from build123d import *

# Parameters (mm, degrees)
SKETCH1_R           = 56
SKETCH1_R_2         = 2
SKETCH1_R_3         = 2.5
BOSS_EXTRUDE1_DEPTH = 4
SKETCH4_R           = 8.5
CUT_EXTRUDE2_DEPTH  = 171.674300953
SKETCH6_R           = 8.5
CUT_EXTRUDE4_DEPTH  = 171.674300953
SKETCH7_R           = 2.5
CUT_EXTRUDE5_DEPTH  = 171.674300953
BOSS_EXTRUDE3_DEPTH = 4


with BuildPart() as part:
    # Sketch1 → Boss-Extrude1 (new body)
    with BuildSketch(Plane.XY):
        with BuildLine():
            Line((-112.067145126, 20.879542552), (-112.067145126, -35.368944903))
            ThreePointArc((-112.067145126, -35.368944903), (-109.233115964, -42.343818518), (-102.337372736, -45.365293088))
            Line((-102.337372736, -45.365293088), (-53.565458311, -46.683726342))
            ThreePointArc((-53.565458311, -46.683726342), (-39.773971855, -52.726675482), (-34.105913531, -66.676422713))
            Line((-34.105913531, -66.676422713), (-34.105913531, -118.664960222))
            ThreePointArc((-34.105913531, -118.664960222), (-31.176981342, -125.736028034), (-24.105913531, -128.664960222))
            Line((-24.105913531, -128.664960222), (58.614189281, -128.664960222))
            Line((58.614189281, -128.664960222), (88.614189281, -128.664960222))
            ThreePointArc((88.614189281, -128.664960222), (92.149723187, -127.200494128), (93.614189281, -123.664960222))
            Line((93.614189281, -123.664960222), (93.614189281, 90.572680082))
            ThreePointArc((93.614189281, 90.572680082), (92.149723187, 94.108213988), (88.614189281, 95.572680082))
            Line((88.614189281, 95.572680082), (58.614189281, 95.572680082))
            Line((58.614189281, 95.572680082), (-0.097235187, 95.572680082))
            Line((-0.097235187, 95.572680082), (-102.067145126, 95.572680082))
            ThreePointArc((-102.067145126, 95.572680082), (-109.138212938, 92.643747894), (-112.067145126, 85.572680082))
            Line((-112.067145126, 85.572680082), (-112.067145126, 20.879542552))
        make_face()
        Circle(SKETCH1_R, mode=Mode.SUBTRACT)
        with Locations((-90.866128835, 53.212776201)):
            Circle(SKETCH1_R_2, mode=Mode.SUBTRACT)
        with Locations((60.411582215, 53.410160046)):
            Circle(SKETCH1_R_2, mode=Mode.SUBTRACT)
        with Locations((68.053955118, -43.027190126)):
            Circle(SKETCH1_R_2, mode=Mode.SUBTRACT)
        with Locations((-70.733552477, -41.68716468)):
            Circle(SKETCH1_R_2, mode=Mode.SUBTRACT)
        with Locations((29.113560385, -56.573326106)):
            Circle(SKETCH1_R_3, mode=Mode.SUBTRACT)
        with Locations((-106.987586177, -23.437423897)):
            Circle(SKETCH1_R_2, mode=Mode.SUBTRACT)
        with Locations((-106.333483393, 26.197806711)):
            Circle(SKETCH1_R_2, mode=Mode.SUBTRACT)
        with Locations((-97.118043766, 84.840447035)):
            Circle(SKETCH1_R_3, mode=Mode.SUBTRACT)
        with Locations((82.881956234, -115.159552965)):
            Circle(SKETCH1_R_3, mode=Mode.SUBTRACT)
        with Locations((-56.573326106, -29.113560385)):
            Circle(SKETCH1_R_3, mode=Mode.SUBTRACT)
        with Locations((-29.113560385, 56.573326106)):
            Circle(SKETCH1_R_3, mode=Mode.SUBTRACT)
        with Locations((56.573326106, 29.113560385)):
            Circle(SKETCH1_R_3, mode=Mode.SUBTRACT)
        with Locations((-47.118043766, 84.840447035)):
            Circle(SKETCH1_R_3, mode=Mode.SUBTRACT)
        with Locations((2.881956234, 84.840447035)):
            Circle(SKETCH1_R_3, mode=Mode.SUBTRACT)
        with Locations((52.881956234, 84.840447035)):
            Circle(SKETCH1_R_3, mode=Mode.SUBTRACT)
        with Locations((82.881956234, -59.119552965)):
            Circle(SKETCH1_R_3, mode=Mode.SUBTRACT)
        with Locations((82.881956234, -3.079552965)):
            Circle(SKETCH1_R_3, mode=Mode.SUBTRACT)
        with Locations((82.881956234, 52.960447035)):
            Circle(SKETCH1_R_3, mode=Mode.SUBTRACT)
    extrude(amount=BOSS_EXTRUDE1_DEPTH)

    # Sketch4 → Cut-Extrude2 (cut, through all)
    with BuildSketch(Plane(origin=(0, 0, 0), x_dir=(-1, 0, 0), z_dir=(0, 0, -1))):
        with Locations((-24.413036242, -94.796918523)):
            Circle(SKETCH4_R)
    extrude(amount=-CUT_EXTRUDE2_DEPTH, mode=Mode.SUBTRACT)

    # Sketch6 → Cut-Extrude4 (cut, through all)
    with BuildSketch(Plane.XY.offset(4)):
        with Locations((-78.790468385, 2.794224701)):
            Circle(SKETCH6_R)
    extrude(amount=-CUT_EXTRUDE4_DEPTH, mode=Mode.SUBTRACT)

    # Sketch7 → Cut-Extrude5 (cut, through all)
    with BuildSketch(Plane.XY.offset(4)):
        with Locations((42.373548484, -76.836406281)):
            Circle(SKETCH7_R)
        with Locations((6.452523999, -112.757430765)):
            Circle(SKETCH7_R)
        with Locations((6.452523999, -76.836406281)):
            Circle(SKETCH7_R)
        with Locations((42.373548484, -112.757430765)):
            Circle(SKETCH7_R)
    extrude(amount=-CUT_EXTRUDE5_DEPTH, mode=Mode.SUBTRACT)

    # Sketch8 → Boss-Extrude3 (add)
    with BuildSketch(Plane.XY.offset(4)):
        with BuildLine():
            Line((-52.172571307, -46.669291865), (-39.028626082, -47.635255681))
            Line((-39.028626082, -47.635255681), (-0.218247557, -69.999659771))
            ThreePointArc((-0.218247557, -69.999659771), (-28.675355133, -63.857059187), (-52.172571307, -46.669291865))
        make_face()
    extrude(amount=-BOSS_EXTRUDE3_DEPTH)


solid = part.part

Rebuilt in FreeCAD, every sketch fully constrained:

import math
import FreeCAD as App
import Part
import Sketcher
from FreeCAD import Vector
Q = App.Units.Quantity

doc = App.newDocument("Part")
params = doc.addObject("Spreadsheet::Sheet", "Params")
for row, (alias, value) in enumerate([
    ("sketch1_diameter", "4 mm"),
    ("sketch1_diameter2", "5 mm"),
    ("sketch1_diameter3", "112 mm"),
    ("sketch1_radius", "10 mm"),
    ("sketch1_radius2", "20 mm"),
    ("pad1_length", "4 mm"),
    ("sketch2_diameter", "17 mm"),
    ("sketch3_diameter", "17 mm"),
    ("sketch4_diameter", "5 mm"),
    ("sketch5_radius", "70 mm"),
    ("pad2_length", "4 mm"),
], start=1):
    params.set(f"A{row}", alias)
    params.set(f"B{row}", "=" + value)
    params.setAlias(f"B{row}", alias)

body = doc.addObject("PartDesign::Body", "Body")

sketch1 = doc.addObject("Sketcher::SketchObject", "Sketch")
body.addObject(sketch1)
sketch1.AttachmentSupport = (doc.XY_Plane, [""])
sketch1.MapMode = "FlatFace"
sketch1.addGeometry(Part.ArcOfCircle(Part.Circle(Vector(-102.1, -35.4, 0), Vector(0, 0, 1), 10), math.radians(180), math.radians(268)), False)
sketch1.addGeometry(Part.LineSegment(Vector(-102.3, -45.4, 0), Vector(-53.6, -46.7, 0)), False)
sketch1.addGeometry(Part.ArcOfCircle(Part.Circle(Vector(-54.1, -66.7, 0), Vector(0, 0, 1), 20), math.radians(0), math.radians(88)), False)
sketch1.addGeometry(Part.LineSegment(Vector(-34.1, -66.7, 0), Vector(-34.1, -118.7, 0)), False)
sketch1.addGeometry(Part.ArcOfCircle(Part.Circle(Vector(-24.1, -118.7, 0), Vector(0, 0, 1), 10), math.radians(-180), math.radians(-90)), False)
sketch1.addGeometry(Part.LineSegment(Vector(-24.1, -128.7, 0), Vector(88.6, -128.7, 0)), False)
sketch1.addGeometry(Part.ArcOfCircle(Part.Circle(Vector(88.6, -123.7, 0), Vector(0, 0, 1), 5), math.radians(-90), math.radians(0)), False)
sketch1.addGeometry(Part.LineSegment(Vector(93.6, -123.7, 0), Vector(93.6, 90.6, 0)), False)
sketch1.addGeometry(Part.ArcOfCircle(Part.Circle(Vector(88.6, 90.6, 0), Vector(0, 0, 1), 5), math.radians(0), math.radians(90)), False)
sketch1.addGeometry(Part.LineSegment(Vector(88.6, 95.6, 0), Vector(-102.1, 95.6, 0)), False)
sketch1.addGeometry(Part.ArcOfCircle(Part.Circle(Vector(-102.1, 85.6, 0), Vector(0, 0, 1), 10), math.radians(90), math.radians(180)), False)
sketch1.addGeometry(Part.LineSegment(Vector(-112.1, 85.6, 0), Vector(-112.1, -35.4, 0)), False)
sketch1.addGeometry(Part.Circle(Vector(-70.7, -41.7, 0), Vector(0, 0, 1), 2), False)
sketch1.addGeometry(Part.Circle(Vector(-107, -23.4, 0), Vector(0, 0, 1), 2), False)
sketch1.addGeometry(Part.Circle(Vector(-56.6, -29.1, 0), Vector(0, 0, 1), 2.5), False)
sketch1.addGeometry(Part.Circle(Vector(82.9, -115.2, 0), Vector(0, 0, 1), 2.5), False)
sketch1.addGeometry(Part.Circle(Vector(29.1, -56.6, 0), Vector(0, 0, 1), 2.5), False)
sketch1.addGeometry(Part.Circle(Vector(82.9, -59.1, 0), Vector(0, 0, 1), 2.5), False)
sketch1.addGeometry(Part.Circle(Vector(68.1, -43, 0), Vector(0, 0, 1), 2), False)
sketch1.addGeometry(Part.Circle(Vector(-106.3, 26.2, 0), Vector(0, 0, 1), 2), False)
sketch1.addGeometry(Part.Circle(Vector(-90.9, 53.2, 0), Vector(0, 0, 1), 2), False)
sketch1.addGeometry(Part.Circle(Vector(-97.1, 84.8, 0), Vector(0, 0, 1), 2.5), False)
sketch1.addGeometry(Part.Circle(Vector(-29.1, 56.6, 0), Vector(0, 0, 1), 2.5), False)
sketch1.addGeometry(Part.Circle(Vector(-47.1, 84.8, 0), Vector(0, 0, 1), 2.5), False)
sketch1.addGeometry(Part.Circle(Vector(0, 0, 0), Vector(0, 0, 1), 56), False)
sketch1.addGeometry(Part.Circle(Vector(82.9, -3.1, 0), Vector(0, 0, 1), 2.5), False)
sketch1.addGeometry(Part.Circle(Vector(56.6, 29.1, 0), Vector(0, 0, 1), 2.5), False)
sketch1.addGeometry(Part.Circle(Vector(2.9, 84.8, 0), Vector(0, 0, 1), 2.5), False)
sketch1.addGeometry(Part.Circle(Vector(60.4, 53.4, 0), Vector(0, 0, 1), 2), False)
sketch1.addGeometry(Part.Circle(Vector(82.9, 53, 0), Vector(0, 0, 1), 2.5), False)
sketch1.addGeometry(Part.Circle(Vector(52.9, 84.8, 0), Vector(0, 0, 1), 2.5), False)
sketch1.addConstraint(Sketcher.Constraint("Tangent", 0, 2, 1, 1))
sketch1.addConstraint(Sketcher.Constraint("Tangent", 1, 2, 2, 2))
sketch1.addConstraint(Sketcher.Constraint("Tangent", 2, 1, 3, 1))
sketch1.addConstraint(Sketcher.Constraint("Tangent", 3, 2, 4, 1))
sketch1.addConstraint(Sketcher.Constraint("Tangent", 4, 2, 5, 1))
sketch1.addConstraint(Sketcher.Constraint("Tangent", 5, 2, 6, 1))
sketch1.addConstraint(Sketcher.Constraint("Tangent", 6, 2, 7, 1))
sketch1.addConstraint(Sketcher.Constraint("Tangent", 7, 2, 8, 1))
sketch1.addConstraint(Sketcher.Constraint("Tangent", 8, 2, 9, 1))
sketch1.addConstraint(Sketcher.Constraint("Tangent", 9, 2, 10, 1))
sketch1.addConstraint(Sketcher.Constraint("Tangent", 10, 2, 11, 1))
sketch1.addConstraint(Sketcher.Constraint("Tangent", 11, 2, 0, 1))
sketch1.addConstraint(Sketcher.Constraint("Vertical", 3))
sketch1.addConstraint(Sketcher.Constraint("Horizontal", 5))
sketch1.addConstraint(Sketcher.Constraint("Vertical", 7))
sketch1.addConstraint(Sketcher.Constraint("Horizontal", 9))
sketch1.addConstraint(Sketcher.Constraint("Vertical", 11))
sketch1.addConstraint(Sketcher.Constraint("Coincident", 24, 3, -1, 1))
sketch1.addConstraint(Sketcher.Constraint("Equal", 0, 4))
sketch1.addConstraint(Sketcher.Constraint("Equal", 6, 8))
sketch1.addConstraint(Sketcher.Constraint("Equal", 4, 10))
sketch1.addConstraint(Sketcher.Constraint("Equal", 12, 13))
sketch1.addConstraint(Sketcher.Constraint("Equal", 14, 15))
sketch1.addConstraint(Sketcher.Constraint("Equal", 15, 16))
sketch1.addConstraint(Sketcher.Constraint("Equal", 16, 17))
sketch1.addConstraint(Sketcher.Constraint("Equal", 13, 18))
sketch1.addConstraint(Sketcher.Constraint("Equal", 18, 19))
sketch1.addConstraint(Sketcher.Constraint("Equal", 19, 20))
sketch1.addConstraint(Sketcher.Constraint("Equal", 17, 21))
sketch1.addConstraint(Sketcher.Constraint("Equal", 21, 22))
sketch1.addConstraint(Sketcher.Constraint("Equal", 22, 23))
sketch1.addConstraint(Sketcher.Constraint("Equal", 23, 25))
sketch1.addConstraint(Sketcher.Constraint("Equal", 25, 26))
sketch1.addConstraint(Sketcher.Constraint("Equal", 26, 27))
sketch1.addConstraint(Sketcher.Constraint("Equal", 20, 28))
sketch1.addConstraint(Sketcher.Constraint("Equal", 27, 29))
sketch1.addConstraint(Sketcher.Constraint("Equal", 29, 30))
sketch1.addConstraint(Sketcher.Constraint("Symmetric", 16, 3, 22, 3, -1, 1))
sketch1.addConstraint(Sketcher.Constraint("Symmetric", 14, 3, 26, 3, -1, 1))
sketch1.addConstraint(Sketcher.Constraint("Horizontal", 21, 3, 23, 3))
sketch1.addConstraint(Sketcher.Constraint("Horizontal", 23, 3, 27, 3))
sketch1.addConstraint(Sketcher.Constraint("Horizontal", 27, 3, 30, 3))
sketch1.addConstraint(Sketcher.Constraint("Vertical", 15, 3, 17, 3))
sketch1.addConstraint(Sketcher.Constraint("Vertical", 17, 3, 25, 3))
sketch1.addConstraint(Sketcher.Constraint("Vertical", 25, 3, 29, 3))
sketch1.addConstraint(Sketcher.Constraint("Diameter", 12, Q("4 mm")))
sketch1.addConstraint(Sketcher.Constraint("Diameter", 14, Q("5 mm")))
sketch1.addConstraint(Sketcher.Constraint("Diameter", 24, Q("112 mm")))
sketch1.addConstraint(Sketcher.Constraint("Radius", 0, Q("10 mm")))
sketch1.addConstraint(Sketcher.Constraint("Radius", 2, Q("20 mm")))
sketch1.addConstraint(Sketcher.Constraint("Radius", 6, Q("5 mm")))
sketch1.addConstraint(Sketcher.Constraint("DistanceX", 21, 3, 23, 3, Q("50 mm")))
sketch1.addConstraint(Sketcher.Constraint("DistanceX", 23, 3, 27, 3, Q("50 mm")))
sketch1.addConstraint(Sketcher.Constraint("DistanceX", 27, 3, 29, 3, Q("80 mm")))
sketch1.addConstraint(Sketcher.Constraint("DistanceX", 30, 3, 29, 3, Q("30 mm")))
sketch1.addConstraint(Sketcher.Constraint("DistanceY", 15, 3, 17, 3, Q("56.04 mm")))
sketch1.addConstraint(Sketcher.Constraint("DistanceY", 17, 3, 25, 3, Q("56.04 mm")))
sketch1.addConstraint(Sketcher.Constraint("DistanceY", 25, 3, 29, 3, Q("56.04 mm")))
sketch1.addConstraint(Sketcher.Constraint("DistanceY", 29, 3, 27, 3, Q("31.88 mm")))
sketch1.addConstraint(Sketcher.Constraint("DistanceY", 2, 3, 13, 3, Q("43.238999 mm")))
sketch1.addConstraint(Sketcher.Constraint("DistanceX", 18, 3, 17, 3, Q("14.828001 mm")))
sketch1.addConstraint(Sketcher.Constraint("DistanceY", 7, 1, 7, 2, Q("214.23764 mm")))
sketch1.addConstraint(Sketcher.Constraint("DistanceY", 4, 3, 14, 3, Q("89.5514 mm")))
sketch1.addConstraint(Sketcher.Constraint("DistanceY", 13, 3, 20, 3, Q("76.6502 mm")))
sketch1.addConstraint(Sketcher.Constraint("DistanceX", 10, 3, 21, 3, Q("4.949101 mm")))
sketch1.addConstraint(Sketcher.Constraint("DistanceY", 26, 3, 28, 3, Q("24.2966 mm")))
sketch1.addConstraint(Sketcher.Constraint("Distance", 1, Q("48.789732 mm")))
sketch1.addConstraint(Sketcher.Constraint("DistanceX", 5, 1, 5, 2, Q("112.720103 mm")))
sketch1.addConstraint(Sketcher.Constraint("DistanceX", 9, 2, 9, 1, Q("190.681334 mm")))
sketch1.addConstraint(Sketcher.Constraint("DistanceY", 3, 2, 3, 1, Q("51.988538 mm")))
sketch1.addConstraint(Sketcher.Constraint("DistanceY", 4, 3, -1, 1, Q("118.66496 mm")))
sketch1.addConstraint(Sketcher.Constraint("DistanceX", -1, 1, 6, 3, Q("88.614189 mm")))
sketch1.addConstraint(Sketcher.Constraint("DistanceX", -1, 1, 16, 3, Q("29.11356 mm")))
sketch1.addConstraint(Sketcher.Constraint("DistanceY", 18, 3, -1, 1, Q("43.02719 mm")))
sketch1.addConstraint(Sketcher.Constraint("DistanceX", 20, 3, -1, 1, Q("90.866129 mm")))
sketch1.addConstraint(Sketcher.Constraint("DistanceX", 12, 3, 2, 3, Q("16.627639 mm")))
sketch1.addConstraint(Sketcher.Constraint("DistanceY", 2, 3, 12, 3, Q("24.989258 mm")))
sketch1.addConstraint(Sketcher.Constraint("DistanceX", 13, 3, 0, 3, Q("4.920441 mm")))
sketch1.addConstraint(Sketcher.Constraint("DistanceX", 0, 3, 14, 3, Q("45.493819 mm")))
sketch1.addConstraint(Sketcher.Constraint("DistanceY", 15, 3, 2, 3, Q("48.48313 mm")))
sketch1.addConstraint(Sketcher.Constraint("DistanceY", 13, 3, 19, 3, Q("49.635231 mm")))
sketch1.addConstraint(Sketcher.Constraint("DistanceX", 19, 3, 10, 3, Q("4.266338 mm")))
sketch1.addConstraint(Sketcher.Constraint("DistanceY", 20, 3, 22, 3, Q("3.36055 mm")))
sketch1.addConstraint(Sketcher.Constraint("DistanceX", -1, 1, 28, 3, Q("60.411582 mm")))
sketch1.setExpression("Constraints[45]", "Params.sketch1_diameter")
sketch1.setExpression("Constraints[46]", "Params.sketch1_diameter2")
sketch1.setExpression("Constraints[47]", "Params.sketch1_diameter3")
sketch1.setExpression("Constraints[48]", "Params.sketch1_radius")
sketch1.setExpression("Constraints[49]", "Params.sketch1_radius2")
pad1 = doc.addObject("PartDesign::Pad", "Pad")
body.addObject(pad1)
pad1.Profile = sketch1
pad1.setExpression("Length", "Params.pad1_length")

sketch2 = doc.addObject("Sketcher::SketchObject", "Sketch001")
body.addObject(sketch2)
sketch2.AttachmentSupport = (doc.XY_Plane, [""])
sketch2.MapMode = "FlatFace"
sketch2.addGeometry(Part.Circle(Vector(24, -95, 0), Vector(0, 0, 1), 8), False)
sketch2.addConstraint(Sketcher.Constraint("Diameter", 0, Q("17 mm")))
sketch2.addConstraint(Sketcher.Constraint("DistanceY", 0, 3, -1, 1, Q("94.796919 mm")))
sketch2.addConstraint(Sketcher.Constraint("DistanceX", -1, 1, 0, 3, Q("24.413036 mm")))
sketch2.setExpression("Constraints[0]", "Params.sketch2_diameter")
pocket1 = doc.addObject("PartDesign::Pocket", "Pocket")
body.addObject(pocket1)
pocket1.Profile = sketch2
pocket1.Type = "ThroughAll"
pocket1.Reversed = True

sketch3 = doc.addObject("Sketcher::SketchObject", "Sketch002")
body.addObject(sketch3)
sketch3.AttachmentSupport = (doc.XY_Plane, [""])
sketch3.MapMode = "FlatFace"
sketch3.AttachmentOffset = App.Placement(Vector(0, 0, 4), App.Rotation())
sketch3.addGeometry(Part.Circle(Vector(-79, 3, 0), Vector(0, 0, 1), 8), False)
sketch3.addConstraint(Sketcher.Constraint("Diameter", 0, Q("17 mm")))
sketch3.addConstraint(Sketcher.Constraint("DistanceX", 0, 3, -1, 1, Q("78.790468 mm")))
sketch3.addConstraint(Sketcher.Constraint("DistanceY", -1, 1, 0, 3, Q("2.794225 mm")))
sketch3.setExpression("Constraints[0]", "Params.sketch3_diameter")
pocket2 = doc.addObject("PartDesign::Pocket", "Pocket001")
body.addObject(pocket2)
pocket2.Profile = sketch3
pocket2.Type = "ThroughAll"

sketch4 = doc.addObject("Sketcher::SketchObject", "Sketch003")
body.addObject(sketch4)
sketch4.AttachmentSupport = (doc.XY_Plane, [""])
sketch4.MapMode = "FlatFace"
sketch4.AttachmentOffset = App.Placement(Vector(0, 0, 4), App.Rotation())
sketch4.addGeometry(Part.Circle(Vector(42.4, -76.8, 0), Vector(0, 0, 1), 2.5), False)
sketch4.addGeometry(Part.Circle(Vector(6.5, -112.8, 0), Vector(0, 0, 1), 2.5), False)
sketch4.addGeometry(Part.Circle(Vector(6.5, -76.8, 0), Vector(0, 0, 1), 2.5), False)
sketch4.addGeometry(Part.Circle(Vector(42.4, -112.8, 0), Vector(0, 0, 1), 2.5), False)
sketch4.addConstraint(Sketcher.Constraint("Equal", 0, 1))
sketch4.addConstraint(Sketcher.Constraint("Equal", 1, 2))
sketch4.addConstraint(Sketcher.Constraint("Equal", 2, 3))
sketch4.addConstraint(Sketcher.Constraint("Horizontal", 0, 3, 2, 3))
sketch4.addConstraint(Sketcher.Constraint("Horizontal", 1, 3, 3, 3))
sketch4.addConstraint(Sketcher.Constraint("Vertical", 1, 3, 2, 3))
sketch4.addConstraint(Sketcher.Constraint("Vertical", 0, 3, 3, 3))
sketch4.addConstraint(Sketcher.Constraint("Diameter", 0, Q("5 mm")))
sketch4.addConstraint(Sketcher.Constraint("DistanceX", -1, 1, 0, 3, Q("42.373548 mm")))
sketch4.addConstraint(Sketcher.Constraint("DistanceY", 1, 3, -1, 1, Q("112.757431 mm")))
sketch4.addConstraint(Sketcher.Constraint("DistanceY", 0, 3, -1, 1, Q("76.836406 mm")))
sketch4.addConstraint(Sketcher.Constraint("DistanceX", -1, 1, 1, 3, Q("6.452524 mm")))
sketch4.setExpression("Constraints[7]", "Params.sketch4_diameter")
pocket3 = doc.addObject("PartDesign::Pocket", "Pocket002")
body.addObject(pocket3)
pocket3.Profile = sketch4
pocket3.Type = "ThroughAll"

sketch5 = doc.addObject("Sketcher::SketchObject", "Sketch004")
body.addObject(sketch5)
sketch5.AttachmentSupport = (doc.XY_Plane, [""])
sketch5.MapMode = "FlatFace"
sketch5.AttachmentOffset = App.Placement(Vector(0, 0, 4), App.Rotation())
sketch5.addGeometry(Part.LineSegment(Vector(-39, -48, 0), Vector(-52, -47, 0)), False)
sketch5.addGeometry(Part.ArcOfCircle(Part.Circle(Vector(0, 0, 0), Vector(0, 0, 1), 70), math.radians(-138), math.radians(-90)), False)
sketch5.addGeometry(Part.LineSegment(Vector(0, -70, 0), Vector(-39, -48, 0)), False)
sketch5.addConstraint(Sketcher.Constraint("Coincident", 0, 2, 1, 1))
sketch5.addConstraint(Sketcher.Constraint("Coincident", 1, 2, 2, 1))
sketch5.addConstraint(Sketcher.Constraint("Coincident", 2, 2, 0, 1))
sketch5.addConstraint(Sketcher.Constraint("Coincident", 1, 3, -1, 1))
sketch5.addConstraint(Sketcher.Constraint("Radius", 1, Q("70 mm")))
sketch5.addConstraint(Sketcher.Constraint("Distance", 2, Q("44.792991 mm")))
sketch5.addConstraint(Sketcher.Constraint("DistanceX", 0, 2, -1, 1, Q("52.172571 mm")))
sketch5.addConstraint(Sketcher.Constraint("DistanceX", 2, 2, 1, 2, Q("38.810379 mm")))
sketch5.addConstraint(Sketcher.Constraint("Distance", 0, Q("13.179392 mm")))
sketch5.setExpression("Constraints[4]", "Params.sketch5_radius")
pad2 = doc.addObject("PartDesign::Pad", "Pad001")
body.addObject(pad2)
pad2.Profile = sketch5
pad2.setExpression("Length", "Params.pad2_length")
pad2.Reversed = True

doc.recompute()
